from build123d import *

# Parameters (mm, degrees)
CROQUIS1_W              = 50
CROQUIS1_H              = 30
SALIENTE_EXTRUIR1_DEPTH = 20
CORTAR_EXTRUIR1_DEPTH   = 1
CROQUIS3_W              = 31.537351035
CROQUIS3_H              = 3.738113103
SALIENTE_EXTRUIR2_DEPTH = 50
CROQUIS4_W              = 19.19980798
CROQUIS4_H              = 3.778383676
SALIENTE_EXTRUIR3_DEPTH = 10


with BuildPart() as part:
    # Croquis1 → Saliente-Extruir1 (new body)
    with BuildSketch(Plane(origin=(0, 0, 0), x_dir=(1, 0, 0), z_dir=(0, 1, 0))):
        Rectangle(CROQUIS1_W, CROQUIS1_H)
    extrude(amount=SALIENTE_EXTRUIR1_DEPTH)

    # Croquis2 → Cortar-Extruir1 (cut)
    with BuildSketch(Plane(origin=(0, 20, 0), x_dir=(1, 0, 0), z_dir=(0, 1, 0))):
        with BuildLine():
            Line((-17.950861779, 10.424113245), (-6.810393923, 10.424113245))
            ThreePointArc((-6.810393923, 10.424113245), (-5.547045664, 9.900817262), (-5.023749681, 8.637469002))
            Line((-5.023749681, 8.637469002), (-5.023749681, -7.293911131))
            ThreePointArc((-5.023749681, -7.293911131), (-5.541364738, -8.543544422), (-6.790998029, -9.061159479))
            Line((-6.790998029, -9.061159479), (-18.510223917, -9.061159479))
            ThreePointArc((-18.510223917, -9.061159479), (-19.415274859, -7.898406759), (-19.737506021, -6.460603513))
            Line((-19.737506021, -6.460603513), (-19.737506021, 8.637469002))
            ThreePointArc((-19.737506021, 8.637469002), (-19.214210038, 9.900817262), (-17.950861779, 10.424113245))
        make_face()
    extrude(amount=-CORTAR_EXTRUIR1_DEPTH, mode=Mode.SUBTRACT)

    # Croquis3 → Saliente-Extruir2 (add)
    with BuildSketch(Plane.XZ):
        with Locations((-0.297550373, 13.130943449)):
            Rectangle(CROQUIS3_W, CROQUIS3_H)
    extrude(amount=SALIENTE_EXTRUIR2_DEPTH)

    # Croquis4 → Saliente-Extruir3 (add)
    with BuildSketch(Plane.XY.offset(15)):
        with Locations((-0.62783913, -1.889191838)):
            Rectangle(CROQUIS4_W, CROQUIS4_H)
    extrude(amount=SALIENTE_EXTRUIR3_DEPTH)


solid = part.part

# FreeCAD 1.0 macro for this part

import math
import FreeCAD as App
import Part
import Sketcher
Q = App.Units.Quantity

doc = App.newDocument("Part")
body = doc.addObject("PartDesign::Body", "Body")

sketch1 = body.newObject("Sketcher::SketchObject", "Sketch")
sketch1.AttachmentSupport = (doc.getObject("XZ_Plane"), [""])
sketch1.MapMode = "FlatFace"
sketch1.addGeometry(Part.LineSegment(App.Vector(-25, -15, 0), App.Vector(-25, 15, 0)), False)
sketch1.addGeometry(Part.LineSegment(App.Vector(-25, 15, 0), App.Vector(25, 15, 0)), False)
sketch1.addGeometry(Part.LineSegment(App.Vector(25, 15, 0), App.Vector(25, -15, 0)), False)
sketch1.addGeometry(Part.LineSegment(App.Vector(25, -15, 0), App.Vector(-25, -15, 0)), False)
sketch1.addConstraint(Sketcher.Constraint("Coincident", 0, 2, 1, 1))
sketch1.addConstraint(Sketcher.Constraint("Coincident", 1, 2, 2, 1))
sketch1.addConstraint(Sketcher.Constraint("Coincident", 2, 2, 3, 1))
sketch1.addConstraint(Sketcher.Constraint("Coincident", 3, 2, 0, 1))
sketch1.addConstraint(Sketcher.Constraint("Vertical", 0))
sketch1.addConstraint(Sketcher.Constraint("Horizontal", 1))
sketch1.addConstraint(Sketcher.Constraint("Vertical", 2))
sketch1.addConstraint(Sketcher.Constraint("Horizontal", 3))
sketch1.addConstraint(Sketcher.Constraint("Symmetric", 0, 2, 2, 2, -1, 1))
sketch1.addConstraint(Sketcher.Constraint("DistanceX", 1, 1, 1, 2, Q("50 mm")))
sketch1.addConstraint(Sketcher.Constraint("DistanceY", 0, 1, 0, 2, Q("30 mm")))
pad1 = body.newObject("PartDesign::Pad", "Pad")
pad1.Profile = sketch1
pad1.Length = 20
pad1.Reversed = True

sketch2 = body.newObject("Sketcher::SketchObject", "Sketch001")
sketch2.AttachmentSupport = (doc.getObject("XZ_Plane"), [""])
sketch2.MapMode = "FlatFace"
sketch2.AttachmentOffset = App.Placement(App.Vector(0, 0, -20), App.Rotation())
sketch2.addGeometry(Part.LineSegment(App.Vector(-6.8, -10.4, 0), App.Vector(-18, -10.4, 0)), False)
sketch2.addGeometry(Part.ArcOfCircle(Part.Circle(App.Vector(-18, -8.6, 0), App.Vector(0, 0, 1), 1.8), math.radians(180), math.radians(270)), False)
sketch2.addGeometry(Part.LineSegment(App.Vector(-19.7, -8.6, 0), App.Vector(-19.7, 6.5, 0)), False)
sketch2.addGeometry(Part.ArcOfCircle(Part.Circle(App.Vector(-16.4, 6.5, 0), App.Vector(0, 0, 1), 3.4), math.radians(129), math.radians(180)), False)
sketch2.addGeometry(Part.LineSegment(App.Vector(-18.5, 9.1, 0), App.Vector(-6.8, 9.1, 0)), False)
sketch2.addGeometry(Part.ArcOfCircle(Part.Circle(App.Vector(-6.8, 7.3, 0), App.Vector(0, 0, 1), 1.8), math.radians(0), math.radians(90)), False)
sketch2.addGeometry(Part.LineSegment(App.Vector(-5, 7.3, 0), App.Vector(-5, -8.6, 0)), False)
sketch2.addGeometry(Part.ArcOfCircle(Part.Circle(App.Vector(-6.8, -8.6, 0), App.Vector(0, 0, 1), 1.8), math.radians(-90), math.radians(0)), False)
sketch2.addConstraint(Sketcher.Constraint("Tangent", 0, 2, 1, 2))
sketch2.addConstraint(Sketcher.Constraint("Tangent", 1, 1, 2, 1))
sketch2.addConstraint(Sketcher.Constraint("Tangent", 2, 2, 3, 2))
sketch2.addConstraint(Sketcher.Constraint("Coincident", 3, 1, 4, 1))
sketch2.addConstraint(Sketcher.Constraint("Tangent", 4, 2, 5, 2))
sketch2.addConstraint(Sketcher.Constraint("Tangent", 5, 1, 6, 1))
sketch2.addConstraint(Sketcher.Constraint("Tangent", 6, 2, 7, 2))
sketch2.addConstraint(Sketcher.Constraint("Tangent", 7, 1, 0, 1))
sketch2.addConstraint(Sketcher.Constraint("Horizontal", 0))
sketch2.addConstraint(Sketcher.Constraint("Vertical", 2))
sketch2.addConstraint(Sketcher.Constraint("Horizontal", 4))
sketch2.addConstraint(Sketcher.Constraint("Vertical", 6))
sketch2.addConstraint(Sketcher.Constraint("Equal", 1, 7))
sketch2.addConstraint(Sketcher.Constraint("Radius", 5, Q("1.767248 mm")))
sketch2.addConstraint(Sketcher.Constraint("DistanceX", 5, 3, -1, 1, Q("6.790998 mm")))
sketch2.addConstraint(Sketcher.Constraint("Radius", 1, Q("1.786644 mm")))
sketch2.addConstraint(Sketcher.Constraint("Radius", 3, Q("3.368872 mm")))
sketch2.addConstraint(Sketcher.Constraint("DistanceY", 6, 2, 6, 1, Q("15.93138 mm")))
sketch2.addConstraint(Sketcher.Constraint("DistanceX", 0, 2, 0, 1, Q("11.140468 mm")))
sketch2.addConstraint(Sketcher.Constraint("DistanceX", 4, 1, 4, 2, Q("11.719226 mm")))
sketch2.addConstraint(Sketcher.Constraint("DistanceY", 1, 3, -1, 1, Q("8.637469 mm")))
pocket1 = body.newObject("PartDesign::Pocket", "Pocket")
pocket1.Profile = sketch2
pocket1.Length = 1
pocket1.Reversed = True

sketch3 = body.newObject("Sketcher::SketchObject", "Sketch002")
sketch3.AttachmentSupport = (doc.getObject("XZ_Plane"), [""])
sketch3.MapMode = "FlatFace"
sketch3.addGeometry(Part.LineSegment(App.Vector(-16.1, 15, 0), App.Vector(-16.1, 11.3, 0)), False)
sketch3.addGeometry(Part.LineSegment(App.Vector(-16.1, 11.3, 0), App.Vector(15.5, 11.3, 0)), False)
sketch3.addGeometry(Part.LineSegment(App.Vector(15.5, 11.3, 0), App.Vector(15.5, 15, 0)), False)
sketch3.addGeometry(Part.LineSegment(App.Vector(15.5, 15, 0), App.Vector(-16.1, 15, 0)), False)
sketch3.addConstraint(Sketcher.Constraint("Coincident", 0, 2, 1, 1))
sketch3.addConstraint(Sketcher.Constraint("Coincident", 1, 2, 2, 1))
sketch3.addConstraint(Sketcher.Constraint("Coincident", 2, 2, 3, 1))
sketch3.addConstraint(Sketcher.Constraint("Coincident", 3, 2, 0, 1))
sketch3.addConstraint(Sketcher.Constraint("Vertical", 0))
sketch3.addConstraint(Sketcher.Constraint("Horizontal", 1))
sketch3.addConstraint(Sketcher.Constraint("Vertical", 2))
sketch3.addConstraint(Sketcher.Constraint("Horizontal", 3))
sketch3.addConstraint(Sketcher.Constraint("DistanceY", -1, 1, 2, 2, Q("15 mm")))
sketch3.addConstraint(Sketcher.Constraint("DistanceX", 1, 1, 1, 2, Q("31.537351 mm")))
sketch3.addConstraint(Sketcher.Constraint("DistanceY", 0, 2, 0, 1, Q("3.738113 mm")))
sketch3.addConstraint(Sketcher.Constraint("DistanceX", 0, 2, -1, 1, Q("16.066226 mm")))
pad2 = body.newObject("PartDesign::Pad", "Pad001")
pad2.Profile = sketch3
pad2.Length = 50

sketch4 = body.newObject("Sketcher::SketchObject", "Sketch003")
sketch4.AttachmentSupport = (doc.getObject("XY_Plane"), [""])
sketch4.MapMode = "FlatFace"
sketch4.AttachmentOffset = App.Placement(App.Vector(0, 0, 15), App.Rotation())
sketch4.addGeometry(Part.LineSegment(App.Vector(-10.2, 0, 0), App.Vector(-10.2, -3.8, 0)), False)
sketch4.addGeometry(Part.LineSegment(App.Vector(-10.2, -3.8, 0), App.Vector(9, -3.8, 0)), False)
sketch4.addGeometry(Part.LineSegment(App.Vector(9, -3.8, 0), App.Vector(9, 0, 0)), False)
sketch4.addGeometry(Part.LineSegment(App.Vector(9, 0, 0), App.Vector(-10.2, 0, 0)), False)
sketch4.addConstraint(Sketcher.Constraint("Coincident", 0, 2, 1, 1))
sketch4.addConstraint(Sketcher.Constraint("Coincident", 1, 2, 2, 1))
sketch4.addConstraint(Sketcher.Constraint("Coincident", 2, 2, 3, 1))
sketch4.addConstraint(Sketcher.Constraint("Coincident", 3, 2, 0, 1))
sketch4.addConstraint(Sketcher.Constraint("Vertical", 0))
sketch4.addConstraint(Sketcher.Constraint("Horizontal", 1))
sketch4.addConstraint(Sketcher.Constraint("Vertical", 2))
sketch4.addConstraint(Sketcher.Constraint("Horizontal", 3))
sketch4.addConstraint(Sketcher.Constraint("PointOnObject", 2, 2, -1))
sketch4.addConstraint(Sketcher.Constraint("DistanceX", 1, 1, 1, 2, Q("19.199808 mm")))
sketch4.addConstraint(Sketcher.Constraint("DistanceY", 0, 2, 0, 1, Q("3.778384 mm")))
sketch4.addConstraint(Sketcher.Constraint("DistanceX", 0, 2, -1, 1, Q("10.227743 mm")))
pad3 = body.newObject("PartDesign::Pad", "Pad002")
pad3.Profile = sketch4
pad3.Length = 10

doc.recompute()
